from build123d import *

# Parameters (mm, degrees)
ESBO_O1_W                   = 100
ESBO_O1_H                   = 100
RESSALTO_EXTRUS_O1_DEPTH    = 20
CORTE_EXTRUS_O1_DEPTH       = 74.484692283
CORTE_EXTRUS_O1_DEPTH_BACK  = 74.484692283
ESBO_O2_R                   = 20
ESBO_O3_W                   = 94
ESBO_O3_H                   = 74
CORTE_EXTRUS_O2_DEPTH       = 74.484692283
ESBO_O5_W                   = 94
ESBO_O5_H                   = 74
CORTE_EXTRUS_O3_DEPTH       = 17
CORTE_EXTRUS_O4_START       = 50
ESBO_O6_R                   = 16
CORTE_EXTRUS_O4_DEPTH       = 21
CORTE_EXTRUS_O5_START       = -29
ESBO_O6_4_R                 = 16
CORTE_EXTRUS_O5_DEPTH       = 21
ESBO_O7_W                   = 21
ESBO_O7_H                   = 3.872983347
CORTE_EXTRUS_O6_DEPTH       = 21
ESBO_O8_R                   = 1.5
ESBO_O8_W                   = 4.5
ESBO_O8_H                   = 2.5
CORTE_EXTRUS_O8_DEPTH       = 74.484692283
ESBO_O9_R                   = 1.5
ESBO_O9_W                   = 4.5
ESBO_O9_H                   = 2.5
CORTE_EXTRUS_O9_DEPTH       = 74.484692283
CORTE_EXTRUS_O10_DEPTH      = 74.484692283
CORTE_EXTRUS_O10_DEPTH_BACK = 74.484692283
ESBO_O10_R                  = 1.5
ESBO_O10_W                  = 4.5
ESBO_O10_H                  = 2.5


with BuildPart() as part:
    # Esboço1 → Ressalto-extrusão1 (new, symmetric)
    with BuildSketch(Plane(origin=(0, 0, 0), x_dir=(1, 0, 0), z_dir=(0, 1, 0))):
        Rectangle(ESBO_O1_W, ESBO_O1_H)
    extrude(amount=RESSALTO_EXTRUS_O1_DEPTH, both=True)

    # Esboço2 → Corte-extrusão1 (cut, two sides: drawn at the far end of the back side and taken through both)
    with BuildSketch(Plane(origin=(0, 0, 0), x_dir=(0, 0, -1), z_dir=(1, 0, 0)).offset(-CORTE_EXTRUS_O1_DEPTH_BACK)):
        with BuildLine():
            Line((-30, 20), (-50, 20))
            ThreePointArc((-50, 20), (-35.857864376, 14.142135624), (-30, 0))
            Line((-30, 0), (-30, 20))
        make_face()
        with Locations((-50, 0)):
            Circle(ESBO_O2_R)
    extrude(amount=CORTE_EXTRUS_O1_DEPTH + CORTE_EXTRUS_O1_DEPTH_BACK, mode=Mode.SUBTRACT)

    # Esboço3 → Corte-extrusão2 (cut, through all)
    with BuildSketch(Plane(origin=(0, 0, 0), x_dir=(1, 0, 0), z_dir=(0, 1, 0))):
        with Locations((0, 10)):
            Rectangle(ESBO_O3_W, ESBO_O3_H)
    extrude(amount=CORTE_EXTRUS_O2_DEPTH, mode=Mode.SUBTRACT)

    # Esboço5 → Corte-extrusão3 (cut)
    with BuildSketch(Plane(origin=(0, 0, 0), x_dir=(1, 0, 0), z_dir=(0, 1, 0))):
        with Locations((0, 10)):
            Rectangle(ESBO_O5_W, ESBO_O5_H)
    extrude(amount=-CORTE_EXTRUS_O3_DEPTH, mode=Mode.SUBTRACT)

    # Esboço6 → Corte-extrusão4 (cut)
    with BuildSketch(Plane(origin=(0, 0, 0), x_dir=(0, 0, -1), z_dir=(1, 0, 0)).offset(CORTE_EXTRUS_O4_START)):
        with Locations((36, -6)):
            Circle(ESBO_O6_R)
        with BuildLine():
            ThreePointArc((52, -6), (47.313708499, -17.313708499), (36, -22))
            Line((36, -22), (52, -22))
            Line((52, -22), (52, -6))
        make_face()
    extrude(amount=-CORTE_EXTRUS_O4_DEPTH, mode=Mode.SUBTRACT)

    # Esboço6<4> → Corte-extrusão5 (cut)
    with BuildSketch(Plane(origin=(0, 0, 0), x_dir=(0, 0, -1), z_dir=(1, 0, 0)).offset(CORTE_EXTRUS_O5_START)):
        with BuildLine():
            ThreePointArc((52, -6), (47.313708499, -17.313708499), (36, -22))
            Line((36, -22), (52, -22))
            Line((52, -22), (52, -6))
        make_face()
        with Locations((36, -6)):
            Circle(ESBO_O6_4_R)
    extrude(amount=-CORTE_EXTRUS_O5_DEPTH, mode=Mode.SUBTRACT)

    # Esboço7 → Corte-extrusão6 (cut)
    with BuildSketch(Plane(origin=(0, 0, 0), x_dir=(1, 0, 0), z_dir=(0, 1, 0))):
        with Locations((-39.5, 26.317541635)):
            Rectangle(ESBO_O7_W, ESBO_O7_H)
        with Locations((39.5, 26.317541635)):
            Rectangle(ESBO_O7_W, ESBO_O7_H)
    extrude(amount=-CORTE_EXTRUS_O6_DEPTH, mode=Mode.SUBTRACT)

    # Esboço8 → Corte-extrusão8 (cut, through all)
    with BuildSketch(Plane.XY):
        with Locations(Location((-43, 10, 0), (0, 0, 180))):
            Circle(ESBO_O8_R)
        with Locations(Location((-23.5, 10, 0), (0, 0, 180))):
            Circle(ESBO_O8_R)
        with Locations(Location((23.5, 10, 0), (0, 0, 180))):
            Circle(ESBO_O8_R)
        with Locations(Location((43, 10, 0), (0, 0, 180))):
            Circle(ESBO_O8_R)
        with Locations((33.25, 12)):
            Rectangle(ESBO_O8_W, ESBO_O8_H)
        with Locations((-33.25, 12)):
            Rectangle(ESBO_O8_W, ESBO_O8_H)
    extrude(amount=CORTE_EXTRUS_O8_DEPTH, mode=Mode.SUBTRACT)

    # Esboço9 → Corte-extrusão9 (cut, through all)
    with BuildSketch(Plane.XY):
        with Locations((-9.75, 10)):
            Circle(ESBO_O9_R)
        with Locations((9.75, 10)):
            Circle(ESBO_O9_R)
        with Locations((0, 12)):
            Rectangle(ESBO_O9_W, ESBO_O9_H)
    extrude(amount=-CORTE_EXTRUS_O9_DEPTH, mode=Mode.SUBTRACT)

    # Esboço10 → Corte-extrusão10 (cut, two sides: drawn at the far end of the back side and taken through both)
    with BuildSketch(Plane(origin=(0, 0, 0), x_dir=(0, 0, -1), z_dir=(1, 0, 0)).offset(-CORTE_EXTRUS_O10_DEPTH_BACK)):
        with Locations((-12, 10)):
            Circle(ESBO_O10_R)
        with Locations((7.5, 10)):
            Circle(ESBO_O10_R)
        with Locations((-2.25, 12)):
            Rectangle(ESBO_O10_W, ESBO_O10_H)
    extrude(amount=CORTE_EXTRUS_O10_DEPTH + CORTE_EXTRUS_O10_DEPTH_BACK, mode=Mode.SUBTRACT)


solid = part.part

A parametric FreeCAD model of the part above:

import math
import FreeCAD as App
import Part
import Sketcher
Q = App.Units.Quantity

doc = App.newDocument("Part")
body = doc.addObject("PartDesign::Body", "Body")

# Sketch on XZ plane
sketch1 = doc.addObject("Sketcher::SketchObject", "Sketch")
body.addObject(sketch1)
sketch1.AttachmentSupport = (doc.XZ_Plane, [""])
sketch1.MapMode = "FlatFace"
sketch1.addGeometry(Part.LineSegment(App.Vector(-50, -50, 0), App.Vector(-50, 50, 0)), False)
sketch1.addGeometry(Part.LineSegment(App.Vector(-50, 50, 0), App.Vector(50, 50, 0)), False)
sketch1.addGeometry(Part.LineSegment(App.Vector(50, 50, 0), App.Vector(50, -50, 0)), False)
sketch1.addGeometry(Part.LineSegment(App.Vector(50, -50, 0), App.Vector(-50, -50, 0)), False)
sketch1.addConstraint(Sketcher.Constraint("Coincident", 0, 2, 1, 1))
sketch1.addConstraint(Sketcher.Constraint("Coincident", 1, 2, 2, 1))
sketch1.addConstraint(Sketcher.Constraint("Coincident", 2, 2, 3, 1))
sketch1.addConstraint(Sketcher.Constraint("Coincident", 3, 2, 0, 1))
sketch1.addConstraint(Sketcher.Constraint("Vertical", 0))
sketch1.addConstraint(Sketcher.Constraint("Horizontal", 1))
sketch1.addConstraint(Sketcher.Constraint("Vertical", 2))
sketch1.addConstraint(Sketcher.Constraint("Horizontal", 3))
sketch1.addConstraint(Sketcher.Constraint("Symmetric", 0, 2, 2, 2, -1, 1))
sketch1.addConstraint(Sketcher.Constraint("Equal", 3, 0))
sketch1.addConstraint(Sketcher.Constraint("DistanceX", 1, 1, 1, 2, Q("100 mm")))
pad1 = doc.addObject("PartDesign::Pad", "Pad")
body.addObject(pad1)
pad1.Profile = sketch1
pad1.Length = 40
pad1.Midplane = True

# Sketch on YZ plane
sketch2 = doc.addObject("Sketcher::SketchObject", "Sketch001")
body.addObject(sketch2)
sketch2.AttachmentSupport = (doc.YZ_Plane, [""])
sketch2.MapMode = "FlatFace"
sketch2.addGeometry(Part.LineSegment(App.Vector(20, 30, 0), App.Vector(20, 50, 0)), False)
sketch2.addGeometry(Part.ArcOfCircle(Part.Circle(App.Vector(0, 50, 0), App.Vector(0, 0, 1), 20), math.radians(0), math.radians(270)), False)
sketch2.addGeometry(Part.LineSegment(App.Vector(0, 30, 0), App.Vector(20, 30, 0)), False)
sketch2.addConstraint(Sketcher.Constraint("Tangent", 0, 2, 1, 1))
sketch2.addConstraint(Sketcher.Constraint("Tangent", 1, 2, 2, 1))
sketch2.addConstraint(Sketcher.Constraint("Coincident", 2, 2, 0, 1))
sketch2.addConstraint(Sketcher.Constraint("Vertical", 0))
sketch2.addConstraint(Sketcher.Constraint("Horizontal", 2))
sketch2.addConstraint(Sketcher.Constraint("PointOnObject", 1, 3, -2))
sketch2.addConstraint(Sketcher.Constraint("Radius", 1, Q("20 mm")))
sketch2.addConstraint(Sketcher.Constraint("DistanceY", -1, 1, 1, 3, Q("50 mm")))
pocket1 = doc.addObject("PartDesign::Pocket", "Pocket")
body.addObject(pocket1)
pocket1.Profile = sketch2
pocket1.Type = "ThroughAll"
pocket1.Midplane = True

# Sketch on XZ plane
sketch3 = doc.addObject("Sketcher::SketchObject", "Sketch002")
body.addObject(sketch3)
sketch3.AttachmentSupport = (doc.XZ_Plane, [""])
sketch3.MapMode = "FlatFace"
sketch3.addGeometry(Part.LineSegment(App.Vector(-47, -47, 0), App.Vector(-47, 27, 0)), False)
sketch3.addGeometry(Part.LineSegment(App.Vector(-47, 27, 0), App.Vector(47, 27, 0)), False)
sketch3.addGeometry(Part.LineSegment(App.Vector(47, 27, 0), App.Vector(47, -47, 0)), False)
sketch3.addGeometry(Part.LineSegment(App.Vector(47, -47, 0), App.Vector(-47, -47, 0)), False)
sketch3.addConstraint(Sketcher.Constraint("Coincident", 0, 2, 1, 1))
sketch3.addConstraint(Sketcher.Constraint("Coincident", 1, 2, 2, 1))
sketch3.addConstraint(Sketcher.Constraint("Coincident", 2, 2, 3, 1))
sketch3.addConstraint(Sketcher.Constraint("Coincident", 3, 2, 0, 1))
sketch3.addConstraint(Sketcher.Constraint("Vertical", 0))
sketch3.addConstraint(Sketcher.Constraint("Horizontal", 1))
sketch3.addConstraint(Sketcher.Constraint("Vertical", 2))
sketch3.addConstraint(Sketcher.Constraint("Horizontal", 3))
sketch3.addConstraint(Sketcher.Constraint("DistanceX", 1, 1, 1, 2, Q("94 mm")))
sketch3.addConstraint(Sketcher.Constraint("DistanceY", 0, 1, 0, 2, Q("74 mm")))
sketch3.addConstraint(Sketcher.Constraint("DistanceX", 0, 2, -1, 1, Q("47 mm")))
sketch3.addConstraint(Sketcher.Constraint("DistanceY", -1, 1, 0, 2, Q("27 mm")))
pocket2 = doc.addObject("PartDesign::Pocket", "Pocket001")
body.addObject(pocket2)
pocket2.Profile = sketch3
pocket2.Type = "ThroughAll"

# Sketch on XZ plane
sketch4 = doc.addObject("Sketcher::SketchObject", "Sketch003")
body.addObject(sketch4)
sketch4.AttachmentSupport = (doc.XZ_Plane, [""])
sketch4.MapMode = "FlatFace"
sketch4.addGeometry(Part.LineSegment(App.Vector(-47, -47, 0), App.Vector(-47, 27, 0)), False)
sketch4.addGeometry(Part.LineSegment(App.Vector(-47, 27, 0), App.Vector(47, 27, 0)), False)
sketch4.addGeometry(Part.LineSegment(App.Vector(47, 27, 0), App.Vector(47, -47, 0)), False)
sketch4.addGeometry(Part.LineSegment(App.Vector(47, -47, 0), App.Vector(-47, -47, 0)), False)
sketch4.addConstraint(Sketcher.Constraint("Coincident", 0, 2, 1, 1))
sketch4.addConstraint(Sketcher.Constraint("Coincident", 1, 2, 2, 1))
sketch4.addConstraint(Sketcher.Constraint("Coincident", 2, 2, 3, 1))
sketch4.addConstraint(Sketcher.Constraint("Coincident", 3, 2, 0, 1))
sketch4.addConstraint(Sketcher.Constraint("Vertical", 0))
sketch4.addConstraint(Sketcher.Constraint("Horizontal", 1))
sketch4.addConstraint(Sketcher.Constraint("Vertical", 2))
sketch4.addConstraint(Sketcher.Constraint("Horizontal", 3))
sketch4.addConstraint(Sketcher.Constraint("DistanceX", 1, 1, 1, 2, Q("94 mm")))
sketch4.addConstraint(Sketcher.Constraint("DistanceY", 0, 1, 0, 2, Q("74 mm")))
sketch4.addConstraint(Sketcher.Constraint("DistanceX", 0, 2, -1, 1, Q("47 mm")))
sketch4.addConstraint(Sketcher.Constraint("DistanceY", -1, 1, 0, 2, Q("27 mm")))
pocket3 = doc.addObject("PartDesign::Pocket", "Pocket002")
body.addObject(pocket3)
pocket3.Profile = sketch4
pocket3.Length = 17
pocket3.Reversed = True

# Sketch on YZ plane
sketch5 = doc.addObject("Sketcher::SketchObject", "Sketch004")
body.addObject(sketch5)
sketch5.AttachmentSupport = (doc.YZ_Plane, [""])
sketch5.MapMode = "FlatFace"
sketch5.AttachmentOffset = App.Placement(App.Vector(0, 0, 50), App.Rotation())
sketch5.addGeometry(Part.ArcOfCircle(Part.Circle(App.Vector(-6, -36, 0), App.Vector(0, 0, 1), 16), math.radians(-90), math.radians(180)), False)
sketch5.addGeometry(Part.LineSegment(App.Vector(-22, -36, 0), App.Vector(-22, -52, 0)), False)
sketch5.addGeometry(Part.LineSegment(App.Vector(-22, -52, 0), App.Vector(-6, -52, 0)), False)
sketch5.addConstraint(Sketcher.Constraint("Tangent", 0, 2, 1, 1))
sketch5.addConstraint(Sketcher.Constraint("Coincident", 1, 2, 2, 1))
sketch5.addConstraint(Sketcher.Constraint("Tangent", 2, 2, 0, 1))
sketch5.addConstraint(Sketcher.Constraint("Vertical", 1))
sketch5.addConstraint(Sketcher.Constraint("Horizontal", 2))
sketch5.addConstraint(Sketcher.Constraint("Radius", 0, Q("16 mm")))
sketch5.addConstraint(Sketcher.Constraint("DistanceX", 0, 3, -1, 1, Q("6 mm")))
sketch5.addConstraint(Sketcher.Constraint("DistanceY", 0, 3, -1, 1, Q("36 mm")))
pocket4 = doc.addObject("PartDesign::Pocket", "Pocket003")
body.addObject(pocket4)
pocket4.Profile = sketch5
pocket4.Length = 21

# Sketch on YZ plane
sketch6 = doc.addObject("Sketcher::SketchObject", "Sketch005")
body.addObject(sketch6)
sketch6.AttachmentSupport = (doc.YZ_Plane, [""])
sketch6.MapMode = "FlatFace"
sketch6.AttachmentOffset = App.Placement(App.Vector(0, 0, -29), App.Rotation())
sketch6.addGeometry(Part.LineSegment(App.Vector(-22, -36, 0), App.Vector(-22, -52, 0)), False)
sketch6.addGeometry(Part.LineSegment(App.Vector(-22, -52, 0), App.Vector(-6, -52, 0)), False)
sketch6.addGeometry(Part.ArcOfCircle(Part.Circle(App.Vector(-6, -36, 0), App.Vector(0, 0, 1), 16), math.radians(-90), math.radians(180)), False)
sketch6.addConstraint(Sketcher.Constraint("Coincident", 0, 2, 1, 1))
sketch6.addConstraint(Sketcher.Constraint("Tangent", 1, 2, 2, 1))
sketch6.addConstraint(Sketcher.Constraint("Tangent", 2, 2, 0, 1))
sketch6.addConstraint(Sketcher.Constraint("Vertical", 0))
sketch6.addConstraint(Sketcher.Constraint("Horizontal", 1))
sketch6.addConstraint(Sketcher.Constraint("Radius", 2, Q("16 mm")))
sketch6.addConstraint(Sketcher.Constraint("DistanceX", 2, 3, -1, 1, Q("6 mm")))
sketch6.addConstraint(Sketcher.Constraint("DistanceY", 2, 3, -1, 1, Q("36 mm")))
pocket5 = doc.addObject("PartDesign::Pocket", "Pocket004")
body.addObject(pocket5)
pocket5.Profile = sketch6
pocket5.Length = 21

# Sketch on XZ plane
sketch7 = doc.addObject("Sketcher::SketchObject", "Sketch006")
body.addObject(sketch7)
sketch7.AttachmentSupport = (doc.XZ_Plane, [""])
sketch7.MapMode = "FlatFace"
sketch7.addGeometry(Part.LineSegment(App.Vector(-50, -28.3, 0), App.Vector(-50, -24.4, 0)), False)
sketch7.addGeometry(Part.LineSegment(App.Vector(-50, -24.4, 0), App.Vector(-29, -24.4, 0)), False)
sketch7.addGeometry(Part.LineSegment(App.Vector(-29, -24.4, 0), App.Vector(-29, -28.3, 0)), False)
sketch7.addGeometry(Part.LineSegment(App.Vector(-29, -28.3, 0), App.Vector(-50, -28.3, 0)), False)
sketch7.addGeometry(Part.LineSegment(App.Vector(29, -28.3, 0), App.Vector(29, -24.4, 0)), False)
sketch7.addGeometry(Part.LineSegment(App.Vector(29, -24.4, 0), App.Vector(50, -24.4, 0)), False)
sketch7.addGeometry(Part.LineSegment(App.Vector(50, -24.4, 0), App.Vector(50, -28.3, 0)), False)
sketch7.addGeometry(Part.LineSegment(App.Vector(50, -28.3, 0), App.Vector(29, -28.3, 0)), False)
sketch7.addConstraint(Sketcher.Constraint("Coincident", 0, 2, 1, 1))
sketch7.addConstraint(Sketcher.Constraint("Coincident", 1, 2, 2, 1))
sketch7.addConstraint(Sketcher.Constraint("Coincident", 2, 2, 3, 1))
sketch7.addConstraint(Sketcher.Constraint("Coincident", 3, 2, 0, 1))
sketch7.addConstraint(Sketcher.Constraint("Coincident", 4, 2, 5, 1))
sketch7.addConstraint(Sketcher.Constraint("Coincident", 5, 2, 6, 1))
sketch7.addConstraint(Sketcher.Constraint("Coincident", 6, 2, 7, 1))
sketch7.addConstraint(Sketcher.Constraint("Coincident", 7, 2, 4, 1))
sketch7.addConstraint(Sketcher.Constraint("Vertical", 0))
sketch7.addConstraint(Sketcher.Constraint("Horizontal", 1))
sketch7.addConstraint(Sketcher.Constraint("Vertical", 2))
sketch7.addConstraint(Sketcher.Constraint("Horizontal", 3))
sketch7.addConstraint(Sketcher.Constraint("Vertical", 4))
sketch7.addConstraint(Sketcher.Constraint("Horizontal", 5))
sketch7.addConstraint(Sketcher.Constraint("Vertical", 6))
sketch7.addConstraint(Sketcher.Constraint("Horizontal", 7))
sketch7.addConstraint(Sketcher.Constraint("Symmetric", 1, 2, 4, 2, -2))
sketch7.addConstraint(Sketcher.Constraint("Symmetric", 3, 2, 6, 2, -2))
sketch7.addConstraint(Sketcher.Constraint("DistanceX", 1, 1, 1, 2, Q("21 mm")))
sketch7.addConstraint(Sketcher.Constraint("DistanceX", 0, 2, -1, 1, Q("50 mm")))
sketch7.addConstraint(Sketcher.Constraint("DistanceY", 0, 1, 0, 2, Q("3.872983 mm")))
sketch7.addConstraint(Sketcher.Constraint("DistanceY", 0, 2, -1, 1, Q("24.38105 mm")))
pocket6 = doc.addObject("PartDesign::Pocket", "Pocket005")
body.addObject(pocket6)
pocket6.Profile = sketch7
pocket6.Length = 21
pocket6.Reversed = True

# Sketch on XY plane
sketch8 = doc.addObject("Sketcher::SketchObject", "Sketch007")
body.addObject(sketch8)
sketch8.AttachmentSupport = (doc.XY_Plane, [""])
sketch8.MapMode = "FlatFace"
sketch8.addGeometry(Part.Circle(App.Vector(-43, 10, 0), App.Vector(0, 0, 1), 1.5), False)
sketch8.addGeometry(Part.Circle(App.Vector(-23.5, 10, 0), App.Vector(0, 0, 1), 1.5), False)
sketch8.addGeometry(Part.Circle(App.Vector(23.5, 10, 0), App.Vector(0, 0, 1), 1.5), False)
sketch8.addGeometry(Part.Circle(App.Vector(43, 10, 0), App.Vector(0, 0, 1), 1.5), False)
sketch8.addGeometry(Part.LineSegment(App.Vector(31, 13.2, 0), App.Vector(31, 10.8, 0)), False)
sketch8.addGeometry(Part.LineSegment(App.Vector(31, 10.8, 0), App.Vector(35.5, 10.8, 0)), False)
sketch8.addGeometry(Part.LineSegment(App.Vector(35.5, 10.8, 0), App.Vector(35.5, 13.2, 0)), False)
sketch8.addGeometry(Part.LineSegment(App.Vector(35.5, 13.2, 0), App.Vector(31, 13.2, 0)), False)
sketch8.addGeometry(Part.LineSegment(App.Vector(-35.5, 13.2, 0), App.Vector(-35.5, 10.8, 0)), False)
sketch8.addGeometry(Part.LineSegment(App.Vector(-35.5, 10.8, 0), App.Vector(-31, 10.8, 0)), False)
sketch8.addGeometry(Part.LineSegment(App.Vector(-31, 10.8, 0), App.Vector(-31, 13.2, 0)), False)
sketch8.addGeometry(Part.LineSegment(App.Vector(-31, 13.2, 0), App.Vector(-35.5, 13.2, 0)), False)
sketch8.addConstraint(Sketcher.Constraint("Coincident", 4, 2, 5, 1))
sketch8.addConstraint(Sketcher.Constraint("Coincident", 5, 2, 6, 1))
sketch8.addConstraint(Sketcher.Constraint("Coincident", 6, 2, 7, 1))
sketch8.addConstraint(Sketcher.Constraint("Coincident", 7, 2, 4, 1))
sketch8.addConstraint(Sketcher.Constraint("Coincident", 8, 2, 9, 1))
sketch8.addConstraint(Sketcher.Constraint("Coincident", 9, 2, 10, 1))
sketch8.addConstraint(Sketcher.Constraint("Coincident", 10, 2, 11, 1))
sketch8.addConstraint(Sketcher.Constraint("Coincident", 11, 2, 8, 1))
sketch8.addConstraint(Sketcher.Constraint("Vertical", 4))
sketch8.addConstraint(Sketcher.Constraint("Horizontal", 5))
sketch8.addConstraint(Sketcher.Constraint("Vertical", 6))
sketch8.addConstraint(Sketcher.Constraint("Horizontal", 7))
sketch8.addConstraint(Sketcher.Constraint("Vertical", 8))
sketch8.addConstraint(Sketcher.Constraint("Horizontal", 9))
sketch8.addConstraint(Sketcher.Constraint("Vertical", 10))
sketch8.addConstraint(Sketcher.Constraint("Horizontal", 11))
sketch8.addConstraint(Sketcher.Constraint("Equal", 0, 1))
sketch8.addConstraint(Sketcher.Constraint("Equal", 1, 2))
sketch8.addConstraint(Sketcher.Constraint("Equal", 2, 3))
sketch8.addConstraint(Sketcher.Constraint("Symmetric", 1, 3, 2, 3, -2))
sketch8.addConstraint(Sketcher.Constraint("Symmetric", 0, 3, 3, 3, -2))
sketch8.addConstraint(Sketcher.Constraint("Symmetric", 5, 2, 8, 2, -2))
sketch8.addConstraint(Sketcher.Constraint("Symmetric", 7, 2, 10, 2, -2))
sketch8.addConstraint(Sketcher.Constraint("Horizontal", 0, 3, 1, 3))
sketch8.addConstraint(Sketcher.Constraint("Diameter", 0, Q("3 mm")))
sketch8.addConstraint(Sketcher.Constraint("DistanceX", 5, 1, 5, 2, Q("4.5 mm")))
sketch8.addConstraint(Sketcher.Constraint("DistanceY", 4, 2, 4, 1, Q("2.5 mm")))
sketch8.addConstraint(Sketcher.Constraint("DistanceX", 0, 3, -1, 1, Q("43 mm")))
sketch8.addConstraint(Sketcher.Constraint("DistanceY", -1, 1, 0, 3, Q("10 mm")))
sketch8.addConstraint(Sketcher.Constraint("DistanceX", -1, 1, 4, 2, Q("31 mm")))
sketch8.addConstraint(Sketcher.Constraint("DistanceX", 1, 3, 2, 3, Q("47 mm")))
sketch8.addConstraint(Sketcher.Constraint("DistanceY", -1, 1, 4, 2, Q("10.75 mm")))
pocket7 = doc.addObject("PartDesign::Pocket", "Pocket006")
body.addObject(pocket7)
pocket7.Profile = sketch8
pocket7.Type = "ThroughAll"
pocket7.Reversed = True

# Sketch on XY plane
sketch9 = doc.addObject("Sketcher::SketchObject", "Sketch008")
body.addObject(sketch9)
sketch9.AttachmentSupport = (doc.XY_Plane, [""])
sketch9.MapMode = "FlatFace"
sketch9.addGeometry(Part.Circle(App.Vector(-9.8, 10, 0), App.Vector(0, 0, 1), 1.5), False)
sketch9.addGeometry(Part.Circle(App.Vector(9.8, 10, 0), App.Vector(0, 0, 1), 1.5), False)
sketch9.addGeometry(Part.LineSegment(App.Vector(-2.2, 13.2, 0), App.Vector(-2.2, 10.8, 0)), False)
sketch9.addGeometry(Part.LineSegment(App.Vector(-2.2, 10.8, 0), App.Vector(2.2, 10.8, 0)), False)
sketch9.addGeometry(Part.LineSegment(App.Vector(2.2, 10.8, 0), App.Vector(2.2, 13.2, 0)), False)
sketch9.addGeometry(Part.LineSegment(App.Vector(2.2, 13.2, 0), App.Vector(-2.2, 13.2, 0)), False)
sketch9.addConstraint(Sketcher.Constraint("Coincident", 2, 2, 3, 1))
sketch9.addConstraint(Sketcher.Constraint("Coincident", 3, 2, 4, 1))
sketch9.addConstraint(Sketcher.Constraint("Coincident", 4, 2, 5, 1))
sketch9.addConstraint(Sketcher.Constraint("Coincident", 5, 2, 2, 1))
sketch9.addConstraint(Sketcher.Constraint("Vertical", 2))
sketch9.addConstraint(Sketcher.Constraint("Horizontal", 3))
sketch9.addConstraint(Sketcher.Constraint("Vertical", 4))
sketch9.addConstraint(Sketcher.Constraint("Horizontal", 5))
sketch9.addConstraint(Sketcher.Constraint("Equal", 0, 1))
sketch9.addConstraint(Sketcher.Constraint("Symmetric", 0, 3, 1, 3, -2))
sketch9.addConstraint(Sketcher.Constraint("Diameter", 0, Q("3 mm")))
sketch9.addConstraint(Sketcher.Constraint("DistanceX", 3, 1, 3, 2, Q("4.5 mm")))
sketch9.addConstraint(Sketcher.Constraint("DistanceY", 2, 2, 2, 1, Q("2.5 mm")))
sketch9.addConstraint(Sketcher.Constraint("DistanceY", -1, 1, 0, 3, Q("10 mm")))
sketch9.addConstraint(Sketcher.Constraint("DistanceX", 2, 2, 1, 3, Q("12 mm")))
sketch9.addConstraint(Sketcher.Constraint("DistanceX", 0, 3, 3, 2, Q("12 mm")))
sketch9.addConstraint(Sketcher.Constraint("DistanceY", -1, 1, 2, 2, Q("10.75 mm")))
pocket8 = doc.addObject("PartDesign::Pocket", "Pocket007")
body.addObject(pocket8)
pocket8.Profile = sketch9
pocket8.Type = "ThroughAll"

# Sketch on YZ plane
sketch10 = doc.addObject("Sketcher::SketchObject", "Sketch009")
body.addObject(sketch10)
sketch10.AttachmentSupport = (doc.YZ_Plane, [""])
sketch10.MapMode = "FlatFace"
sketch10.addGeometry(Part.Circle(App.Vector(10, 12, 0), App.Vector(0, 0, 1), 1.5), False)
sketch10.addGeometry(Part.Circle(App.Vector(10, -7.5, 0), App.Vector(0, 0, 1), 1.5), False)
sketch10.addGeometry(Part.LineSegment(App.Vector(13.2, 4.5, 0), App.Vector(10.8, 4.5, 0)), False)
sketch10.addGeometry(Part.LineSegment(App.Vector(10.8, 4.5, 0), App.Vector(10.8, 0, 0)), False)
sketch10.addGeometry(Part.LineSegment(App.Vector(10.8, 0, 0), App.Vector(13.2, 0, 0)), False)
sketch10.addGeometry(Part.LineSegment(App.Vector(13.2, 0, 0), App.Vector(13.2, 4.5, 0)), False)
sketch10.addConstraint(Sketcher.Constraint("Coincident", 2, 2, 3, 1))
sketch10.addConstraint(Sketcher.Constraint("Coincident", 3, 2, 4, 1))
sketch10.addConstraint(Sketcher.Constraint("Coincident", 4, 2, 5, 1))
sketch10.addConstraint(Sketcher.Constraint("Coincident", 5, 2, 2, 1))
sketch10.addConstraint(Sketcher.Constraint("Horizontal", 2))
sketch10.addConstraint(Sketcher.Constraint("Vertical", 3))
sketch10.addConstraint(Sketcher.Constraint("Horizontal", 4))
sketch10.addConstraint(Sketcher.Constraint("Vertical", 5))
sketch10.addConstraint(Sketcher.Constraint("Equal", 0, 1))
sketch10.addConstraint(Sketcher.Constraint("PointOnObject", 3, 2, -1))
sketch10.addConstraint(Sketcher.Constraint("Vertical", 0, 3, 1, 3))
sketch10.addConstraint(Sketcher.Constraint("Diameter", 0, Q("3 mm")))
sketch10.addConstraint(Sketcher.Constraint("DistanceX", 2, 2, 2, 1, Q("2.5 mm")))
sketch10.addConstraint(Sketcher.Constraint("DistanceY", 3, 2, 3, 1, Q("4.5 mm")))
sketch10.addConstraint(Sketcher.Constraint("DistanceX", -1, 1, 0, 3, Q("10 mm")))
sketch10.addConstraint(Sketcher.Constraint("DistanceY", -1, 1, 0, 3, Q("12 mm")))
sketch10.addConstraint(Sketcher.Constraint("DistanceY", 1, 3, 2, 2, Q("12 mm")))
sketch10.addConstraint(Sketcher.Constraint("DistanceX", -1, 1, 2, 2, Q("10.75 mm")))
pocket9 = doc.addObject("PartDesign::Pocket", "Pocket008")
body.addObject(pocket9)
pocket9.Profile = sketch10
pocket9.Type = "ThroughAll"
pocket9.Midplane = True

doc.recompute()
